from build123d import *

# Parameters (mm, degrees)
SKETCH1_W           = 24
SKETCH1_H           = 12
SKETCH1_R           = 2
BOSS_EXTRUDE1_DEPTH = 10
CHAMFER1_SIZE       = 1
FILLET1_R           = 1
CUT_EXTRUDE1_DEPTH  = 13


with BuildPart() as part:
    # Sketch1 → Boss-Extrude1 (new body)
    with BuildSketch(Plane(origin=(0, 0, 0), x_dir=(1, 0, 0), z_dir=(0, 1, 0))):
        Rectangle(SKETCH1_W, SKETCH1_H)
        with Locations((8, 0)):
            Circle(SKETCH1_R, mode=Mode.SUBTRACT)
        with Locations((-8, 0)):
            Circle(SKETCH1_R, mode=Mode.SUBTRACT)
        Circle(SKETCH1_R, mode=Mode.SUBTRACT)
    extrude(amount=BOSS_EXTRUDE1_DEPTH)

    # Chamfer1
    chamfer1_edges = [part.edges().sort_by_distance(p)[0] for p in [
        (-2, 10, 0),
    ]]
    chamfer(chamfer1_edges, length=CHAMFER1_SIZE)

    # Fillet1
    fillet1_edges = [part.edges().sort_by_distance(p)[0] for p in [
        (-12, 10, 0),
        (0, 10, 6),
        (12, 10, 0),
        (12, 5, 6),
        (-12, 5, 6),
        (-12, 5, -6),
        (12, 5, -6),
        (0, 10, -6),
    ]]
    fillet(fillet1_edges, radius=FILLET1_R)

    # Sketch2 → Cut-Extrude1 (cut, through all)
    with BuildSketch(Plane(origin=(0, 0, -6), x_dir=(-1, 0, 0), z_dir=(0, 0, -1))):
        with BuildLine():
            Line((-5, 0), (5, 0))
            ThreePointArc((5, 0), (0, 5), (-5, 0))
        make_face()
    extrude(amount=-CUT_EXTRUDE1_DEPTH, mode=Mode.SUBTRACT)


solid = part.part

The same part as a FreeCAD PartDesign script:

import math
import FreeCAD as App
import Part
import Sketcher
Q = App.Units.Quantity


def edges_at(feature, points):
    """Names of the edges that pass closest to the given points."""
    edges = feature.Shape.Edges
    near = lambda p: min(range(len(edges)), key=lambda i: edges[i].distToShape(Part.Vertex(*p))[0])
    return sorted({f"Edge{near(p) + 1}" for p in points})


def add_polygon(sketch, points):
    """Adds a closed chain of lines whose ends are joined by coincident constraints."""
    first, n = sketch.GeometryCount, len(points)
    for a, b in zip(points, points[1:] + points[:1]):
        sketch.addGeometry(Part.LineSegment(App.Vector(*a, 0), App.Vector(*b, 0)), False)
    for i in range(n):
        sketch.addConstraint(Sketcher.Constraint("Coincident", first + i, 2, first + (i + 1) % n, 1))

doc = App.newDocument("Part")
body = doc.addObject("PartDesign::Body", "Body")

# Sketch on XZ plane
sketch1 = doc.addObject("Sketcher::SketchObject", "Sketch")
body.addObject(sketch1)
sketch1.AttachmentSupport = (doc.XZ_Plane, [""])
sketch1.MapMode = "FlatFace"
add_polygon(sketch1, [(-12, -6), (-12, 6), (12, 6), (12, -6)])  # lines 0-3
sketch1.addGeometry(Part.Circle(App.Vector(-8, 0, 0), App.Vector(0, 0, 1), 2), False)  # 4
sketch1.addGeometry(Part.Circle(App.Vector(0, 0, 0), App.Vector(0, 0, 1), 2), False)  # 5
sketch1.addGeometry(Part.Circle(App.Vector(8, 0, 0), App.Vector(0, 0, 1), 2), False)  # 6
sketch1.addConstraint([
    Sketcher.Constraint("Vertical", 0),
    Sketcher.Constraint("Horizontal", 1),
    Sketcher.Constraint("Vertical", 2),
    Sketcher.Constraint("Horizontal", 3),
    Sketcher.Constraint("Coincident", 5, 3, -1, 1),
    Sketcher.Constraint("Equal", 4, 5),
    Sketcher.Constraint("Equal", 5, 6),
    Sketcher.Constraint("Symmetric", 4, 3, 6, 3, -1, 1),
    Sketcher.Constraint("Symmetric", 0, 2, 2, 2, -1, 1),
    Sketcher.Constraint("PointOnObject", 4, 3, -1),
    Sketcher.Constraint("Diameter", 4, Q("4 mm")),
    Sketcher.Constraint("DistanceX", 1, 1, 1, 2, Q("24 mm")),
    Sketcher.Constraint("DistanceY", 0, 1, 0, 2, Q("12 mm")),
    Sketcher.Constraint("DistanceX", 4, 3, -1, 1, Q("8 mm")),
])
pad1 = doc.addObject("PartDesign::Pad", "Pad")
body.addObject(pad1)
pad1.Profile = sketch1
pad1.Length = 10
pad1.Reversed = True
doc.recompute()

chamfer = doc.addObject("PartDesign::Chamfer", "Chamfer")
body.addObject(chamfer)
chamfer.Base = (pad1, edges_at(pad1, [(-2, 10, 0)]))
chamfer.Size = 1
doc.recompute()

fillet = doc.addObject("PartDesign::Fillet", "Fillet")
body.addObject(fillet)
fillet.Base = (chamfer, edges_at(chamfer, [
    (-12, 10, 0),
    (0, 10, 6),
    (12, 10, 0),
    (12, 5, 6),
    (-12, 5, 6),
    (-12, 5, -6),
    (12, 5, -6),
    (0, 10, -6),
]))
fillet.Radius = 1

# Sketch on XY plane
sketch2 = doc.addObject("Sketcher::SketchObject", "Sketch001")
body.addObject(sketch2)
sketch2.AttachmentSupport = (doc.XY_Plane, [""])
sketch2.MapMode = "FlatFace"
sketch2.AttachmentOffset = App.Placement(App.Vector(0, 0, -6), App.Rotation())
sketch2.addGeometry([
    Part.LineSegment(App.Vector(5, 0, 0), App.Vector(-5, 0, 0)),
    Part.ArcOfCircle(Part.Circle(App.Vector(0, 0, 0), App.Vector(0, 0, 1), 5), math.radians(0), math.radians(180)),
], False)
sketch2.addConstraint([
    Sketcher.Constraint("Coincident", 0, 1, 1, 1),
    Sketcher.Constraint("Coincident", 1, 2, 0, 2),
    Sketcher.Constraint("Horizontal", 0),
    Sketcher.Constraint("Coincident", 1, 3, -1, 1),
    Sketcher.Constraint("PointOnObject", 0, 1, -1),
    Sketcher.Constraint("Radius", 1, Q("5 mm")),
])
pocket1 = doc.addObject("PartDesign::Pocket", "Pocket")
body.addObject(pocket1)
pocket1.Profile = sketch2
pocket1.Type = "ThroughAll"
pocket1.Reversed = True

doc.recompute()
